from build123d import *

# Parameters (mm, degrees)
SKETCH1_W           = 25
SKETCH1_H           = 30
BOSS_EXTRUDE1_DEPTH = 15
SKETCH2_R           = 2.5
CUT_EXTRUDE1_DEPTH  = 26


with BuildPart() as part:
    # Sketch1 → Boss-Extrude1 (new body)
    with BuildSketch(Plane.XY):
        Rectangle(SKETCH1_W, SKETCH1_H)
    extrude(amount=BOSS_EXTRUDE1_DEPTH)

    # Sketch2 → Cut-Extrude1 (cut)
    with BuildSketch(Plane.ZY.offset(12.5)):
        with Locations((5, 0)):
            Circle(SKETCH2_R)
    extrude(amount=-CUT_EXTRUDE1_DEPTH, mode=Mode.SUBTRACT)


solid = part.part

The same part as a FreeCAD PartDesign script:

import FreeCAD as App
import Part
import Sketcher

V = App.Vector
Q = App.Units.Quantity


def add_polygon(sketch, points):
    """Adds a closed chain of lines whose ends are joined by coincident constraints."""
    first, n = sketch.GeometryCount, len(points)
    for a, b in zip(points, points[1:] + points[:1]):
        sketch.addGeometry(Part.LineSegment(App.Vector(*a, 0), App.Vector(*b, 0)), False)
    for i in range(n):
        sketch.addConstraint(Sketcher.Constraint("Coincident", first + i, 2, first + (i + 1) % n, 1))

doc = App.newDocument("Part")
params = doc.addObject("Spreadsheet::Sheet", "Params")
for row, (alias, value) in enumerate([
    ("sketch1_width", "25 mm"),
    ("sketch1_height", "30 mm"),
    ("pad1_length", "15 mm"),
    ("sketch2_diameter", "5 mm"),
    ("pocket1_length", "26 mm"),
], start=1):
    params.set(f"A{row}", alias)
    params.set(f"B{row}", "=" + value)
    params.setAlias(f"B{row}", alias)

body = doc.addObject("PartDesign::Body", "Body")

sketch1 = body.newObject("Sketcher::SketchObject", "Sketch")
sketch1.AttachmentSupport = (doc.getObject("XY_Plane"), [""])
sketch1.MapMode = "FlatFace"
add_polygon(sketch1, [(-12.5, 15), (-12.5, -15), (12.5, -15), (12.5, 15)])
sketch1.addConstraint([
    Sketcher.Constraint("Vertical", 0),
    Sketcher.Constraint("Horizontal", 1),
    Sketcher.Constraint("Vertical", 2),
    Sketcher.Constraint("Horizontal", 3),
    Sketcher.Constraint("Symmetric", 0, 2, 2, 2, -1, 1),
    Sketcher.Constraint("DistanceX", 1, 1, 1, 2, Q("25 mm")),
    Sketcher.Constraint("DistanceY", 0, 2, 0, 1, Q("30 mm")),
])
sketch1.setExpression("Constraints[9]", "Params.sketch1_width")
sketch1.setExpression("Constraints[10]", "Params.sketch1_height")
pad1 = body.newObject("PartDesign::Pad", "Pad")
pad1.Profile = sketch1
pad1.setExpression("Length", "Params.pad1_length")

sketch2 = body.newObject("Sketcher::SketchObject", "Sketch001")
sketch2.AttachmentSupport = (doc.getObject("YZ_Plane"), [""])
sketch2.MapMode = "FlatFace"
sketch2.AttachmentOffset = App.Placement(V(0, 0, -12.5), App.Rotation())
sketch2.addGeometry(Part.Circle(V(0, 5, 0), V(0, 0, 1), 2.5), False)
sketch2.addConstraint([
    Sketcher.Constraint("PointOnObject", 0, 3, -2),
    Sketcher.Constraint("Diameter", 0, Q("5 mm")),
    Sketcher.Constraint("DistanceY", -1, 1, 0, 3, Q("5 mm")),
])
sketch2.setExpression("Constraints[1]", "Params.sketch2_diameter")
pocket1 = body.newObject("PartDesign::Pocket", "Pocket")
pocket1.Profile = sketch2
pocket1.setExpression("Length", "Params.pocket1_length")
pocket1.Reversed = True

doc.recompute()
